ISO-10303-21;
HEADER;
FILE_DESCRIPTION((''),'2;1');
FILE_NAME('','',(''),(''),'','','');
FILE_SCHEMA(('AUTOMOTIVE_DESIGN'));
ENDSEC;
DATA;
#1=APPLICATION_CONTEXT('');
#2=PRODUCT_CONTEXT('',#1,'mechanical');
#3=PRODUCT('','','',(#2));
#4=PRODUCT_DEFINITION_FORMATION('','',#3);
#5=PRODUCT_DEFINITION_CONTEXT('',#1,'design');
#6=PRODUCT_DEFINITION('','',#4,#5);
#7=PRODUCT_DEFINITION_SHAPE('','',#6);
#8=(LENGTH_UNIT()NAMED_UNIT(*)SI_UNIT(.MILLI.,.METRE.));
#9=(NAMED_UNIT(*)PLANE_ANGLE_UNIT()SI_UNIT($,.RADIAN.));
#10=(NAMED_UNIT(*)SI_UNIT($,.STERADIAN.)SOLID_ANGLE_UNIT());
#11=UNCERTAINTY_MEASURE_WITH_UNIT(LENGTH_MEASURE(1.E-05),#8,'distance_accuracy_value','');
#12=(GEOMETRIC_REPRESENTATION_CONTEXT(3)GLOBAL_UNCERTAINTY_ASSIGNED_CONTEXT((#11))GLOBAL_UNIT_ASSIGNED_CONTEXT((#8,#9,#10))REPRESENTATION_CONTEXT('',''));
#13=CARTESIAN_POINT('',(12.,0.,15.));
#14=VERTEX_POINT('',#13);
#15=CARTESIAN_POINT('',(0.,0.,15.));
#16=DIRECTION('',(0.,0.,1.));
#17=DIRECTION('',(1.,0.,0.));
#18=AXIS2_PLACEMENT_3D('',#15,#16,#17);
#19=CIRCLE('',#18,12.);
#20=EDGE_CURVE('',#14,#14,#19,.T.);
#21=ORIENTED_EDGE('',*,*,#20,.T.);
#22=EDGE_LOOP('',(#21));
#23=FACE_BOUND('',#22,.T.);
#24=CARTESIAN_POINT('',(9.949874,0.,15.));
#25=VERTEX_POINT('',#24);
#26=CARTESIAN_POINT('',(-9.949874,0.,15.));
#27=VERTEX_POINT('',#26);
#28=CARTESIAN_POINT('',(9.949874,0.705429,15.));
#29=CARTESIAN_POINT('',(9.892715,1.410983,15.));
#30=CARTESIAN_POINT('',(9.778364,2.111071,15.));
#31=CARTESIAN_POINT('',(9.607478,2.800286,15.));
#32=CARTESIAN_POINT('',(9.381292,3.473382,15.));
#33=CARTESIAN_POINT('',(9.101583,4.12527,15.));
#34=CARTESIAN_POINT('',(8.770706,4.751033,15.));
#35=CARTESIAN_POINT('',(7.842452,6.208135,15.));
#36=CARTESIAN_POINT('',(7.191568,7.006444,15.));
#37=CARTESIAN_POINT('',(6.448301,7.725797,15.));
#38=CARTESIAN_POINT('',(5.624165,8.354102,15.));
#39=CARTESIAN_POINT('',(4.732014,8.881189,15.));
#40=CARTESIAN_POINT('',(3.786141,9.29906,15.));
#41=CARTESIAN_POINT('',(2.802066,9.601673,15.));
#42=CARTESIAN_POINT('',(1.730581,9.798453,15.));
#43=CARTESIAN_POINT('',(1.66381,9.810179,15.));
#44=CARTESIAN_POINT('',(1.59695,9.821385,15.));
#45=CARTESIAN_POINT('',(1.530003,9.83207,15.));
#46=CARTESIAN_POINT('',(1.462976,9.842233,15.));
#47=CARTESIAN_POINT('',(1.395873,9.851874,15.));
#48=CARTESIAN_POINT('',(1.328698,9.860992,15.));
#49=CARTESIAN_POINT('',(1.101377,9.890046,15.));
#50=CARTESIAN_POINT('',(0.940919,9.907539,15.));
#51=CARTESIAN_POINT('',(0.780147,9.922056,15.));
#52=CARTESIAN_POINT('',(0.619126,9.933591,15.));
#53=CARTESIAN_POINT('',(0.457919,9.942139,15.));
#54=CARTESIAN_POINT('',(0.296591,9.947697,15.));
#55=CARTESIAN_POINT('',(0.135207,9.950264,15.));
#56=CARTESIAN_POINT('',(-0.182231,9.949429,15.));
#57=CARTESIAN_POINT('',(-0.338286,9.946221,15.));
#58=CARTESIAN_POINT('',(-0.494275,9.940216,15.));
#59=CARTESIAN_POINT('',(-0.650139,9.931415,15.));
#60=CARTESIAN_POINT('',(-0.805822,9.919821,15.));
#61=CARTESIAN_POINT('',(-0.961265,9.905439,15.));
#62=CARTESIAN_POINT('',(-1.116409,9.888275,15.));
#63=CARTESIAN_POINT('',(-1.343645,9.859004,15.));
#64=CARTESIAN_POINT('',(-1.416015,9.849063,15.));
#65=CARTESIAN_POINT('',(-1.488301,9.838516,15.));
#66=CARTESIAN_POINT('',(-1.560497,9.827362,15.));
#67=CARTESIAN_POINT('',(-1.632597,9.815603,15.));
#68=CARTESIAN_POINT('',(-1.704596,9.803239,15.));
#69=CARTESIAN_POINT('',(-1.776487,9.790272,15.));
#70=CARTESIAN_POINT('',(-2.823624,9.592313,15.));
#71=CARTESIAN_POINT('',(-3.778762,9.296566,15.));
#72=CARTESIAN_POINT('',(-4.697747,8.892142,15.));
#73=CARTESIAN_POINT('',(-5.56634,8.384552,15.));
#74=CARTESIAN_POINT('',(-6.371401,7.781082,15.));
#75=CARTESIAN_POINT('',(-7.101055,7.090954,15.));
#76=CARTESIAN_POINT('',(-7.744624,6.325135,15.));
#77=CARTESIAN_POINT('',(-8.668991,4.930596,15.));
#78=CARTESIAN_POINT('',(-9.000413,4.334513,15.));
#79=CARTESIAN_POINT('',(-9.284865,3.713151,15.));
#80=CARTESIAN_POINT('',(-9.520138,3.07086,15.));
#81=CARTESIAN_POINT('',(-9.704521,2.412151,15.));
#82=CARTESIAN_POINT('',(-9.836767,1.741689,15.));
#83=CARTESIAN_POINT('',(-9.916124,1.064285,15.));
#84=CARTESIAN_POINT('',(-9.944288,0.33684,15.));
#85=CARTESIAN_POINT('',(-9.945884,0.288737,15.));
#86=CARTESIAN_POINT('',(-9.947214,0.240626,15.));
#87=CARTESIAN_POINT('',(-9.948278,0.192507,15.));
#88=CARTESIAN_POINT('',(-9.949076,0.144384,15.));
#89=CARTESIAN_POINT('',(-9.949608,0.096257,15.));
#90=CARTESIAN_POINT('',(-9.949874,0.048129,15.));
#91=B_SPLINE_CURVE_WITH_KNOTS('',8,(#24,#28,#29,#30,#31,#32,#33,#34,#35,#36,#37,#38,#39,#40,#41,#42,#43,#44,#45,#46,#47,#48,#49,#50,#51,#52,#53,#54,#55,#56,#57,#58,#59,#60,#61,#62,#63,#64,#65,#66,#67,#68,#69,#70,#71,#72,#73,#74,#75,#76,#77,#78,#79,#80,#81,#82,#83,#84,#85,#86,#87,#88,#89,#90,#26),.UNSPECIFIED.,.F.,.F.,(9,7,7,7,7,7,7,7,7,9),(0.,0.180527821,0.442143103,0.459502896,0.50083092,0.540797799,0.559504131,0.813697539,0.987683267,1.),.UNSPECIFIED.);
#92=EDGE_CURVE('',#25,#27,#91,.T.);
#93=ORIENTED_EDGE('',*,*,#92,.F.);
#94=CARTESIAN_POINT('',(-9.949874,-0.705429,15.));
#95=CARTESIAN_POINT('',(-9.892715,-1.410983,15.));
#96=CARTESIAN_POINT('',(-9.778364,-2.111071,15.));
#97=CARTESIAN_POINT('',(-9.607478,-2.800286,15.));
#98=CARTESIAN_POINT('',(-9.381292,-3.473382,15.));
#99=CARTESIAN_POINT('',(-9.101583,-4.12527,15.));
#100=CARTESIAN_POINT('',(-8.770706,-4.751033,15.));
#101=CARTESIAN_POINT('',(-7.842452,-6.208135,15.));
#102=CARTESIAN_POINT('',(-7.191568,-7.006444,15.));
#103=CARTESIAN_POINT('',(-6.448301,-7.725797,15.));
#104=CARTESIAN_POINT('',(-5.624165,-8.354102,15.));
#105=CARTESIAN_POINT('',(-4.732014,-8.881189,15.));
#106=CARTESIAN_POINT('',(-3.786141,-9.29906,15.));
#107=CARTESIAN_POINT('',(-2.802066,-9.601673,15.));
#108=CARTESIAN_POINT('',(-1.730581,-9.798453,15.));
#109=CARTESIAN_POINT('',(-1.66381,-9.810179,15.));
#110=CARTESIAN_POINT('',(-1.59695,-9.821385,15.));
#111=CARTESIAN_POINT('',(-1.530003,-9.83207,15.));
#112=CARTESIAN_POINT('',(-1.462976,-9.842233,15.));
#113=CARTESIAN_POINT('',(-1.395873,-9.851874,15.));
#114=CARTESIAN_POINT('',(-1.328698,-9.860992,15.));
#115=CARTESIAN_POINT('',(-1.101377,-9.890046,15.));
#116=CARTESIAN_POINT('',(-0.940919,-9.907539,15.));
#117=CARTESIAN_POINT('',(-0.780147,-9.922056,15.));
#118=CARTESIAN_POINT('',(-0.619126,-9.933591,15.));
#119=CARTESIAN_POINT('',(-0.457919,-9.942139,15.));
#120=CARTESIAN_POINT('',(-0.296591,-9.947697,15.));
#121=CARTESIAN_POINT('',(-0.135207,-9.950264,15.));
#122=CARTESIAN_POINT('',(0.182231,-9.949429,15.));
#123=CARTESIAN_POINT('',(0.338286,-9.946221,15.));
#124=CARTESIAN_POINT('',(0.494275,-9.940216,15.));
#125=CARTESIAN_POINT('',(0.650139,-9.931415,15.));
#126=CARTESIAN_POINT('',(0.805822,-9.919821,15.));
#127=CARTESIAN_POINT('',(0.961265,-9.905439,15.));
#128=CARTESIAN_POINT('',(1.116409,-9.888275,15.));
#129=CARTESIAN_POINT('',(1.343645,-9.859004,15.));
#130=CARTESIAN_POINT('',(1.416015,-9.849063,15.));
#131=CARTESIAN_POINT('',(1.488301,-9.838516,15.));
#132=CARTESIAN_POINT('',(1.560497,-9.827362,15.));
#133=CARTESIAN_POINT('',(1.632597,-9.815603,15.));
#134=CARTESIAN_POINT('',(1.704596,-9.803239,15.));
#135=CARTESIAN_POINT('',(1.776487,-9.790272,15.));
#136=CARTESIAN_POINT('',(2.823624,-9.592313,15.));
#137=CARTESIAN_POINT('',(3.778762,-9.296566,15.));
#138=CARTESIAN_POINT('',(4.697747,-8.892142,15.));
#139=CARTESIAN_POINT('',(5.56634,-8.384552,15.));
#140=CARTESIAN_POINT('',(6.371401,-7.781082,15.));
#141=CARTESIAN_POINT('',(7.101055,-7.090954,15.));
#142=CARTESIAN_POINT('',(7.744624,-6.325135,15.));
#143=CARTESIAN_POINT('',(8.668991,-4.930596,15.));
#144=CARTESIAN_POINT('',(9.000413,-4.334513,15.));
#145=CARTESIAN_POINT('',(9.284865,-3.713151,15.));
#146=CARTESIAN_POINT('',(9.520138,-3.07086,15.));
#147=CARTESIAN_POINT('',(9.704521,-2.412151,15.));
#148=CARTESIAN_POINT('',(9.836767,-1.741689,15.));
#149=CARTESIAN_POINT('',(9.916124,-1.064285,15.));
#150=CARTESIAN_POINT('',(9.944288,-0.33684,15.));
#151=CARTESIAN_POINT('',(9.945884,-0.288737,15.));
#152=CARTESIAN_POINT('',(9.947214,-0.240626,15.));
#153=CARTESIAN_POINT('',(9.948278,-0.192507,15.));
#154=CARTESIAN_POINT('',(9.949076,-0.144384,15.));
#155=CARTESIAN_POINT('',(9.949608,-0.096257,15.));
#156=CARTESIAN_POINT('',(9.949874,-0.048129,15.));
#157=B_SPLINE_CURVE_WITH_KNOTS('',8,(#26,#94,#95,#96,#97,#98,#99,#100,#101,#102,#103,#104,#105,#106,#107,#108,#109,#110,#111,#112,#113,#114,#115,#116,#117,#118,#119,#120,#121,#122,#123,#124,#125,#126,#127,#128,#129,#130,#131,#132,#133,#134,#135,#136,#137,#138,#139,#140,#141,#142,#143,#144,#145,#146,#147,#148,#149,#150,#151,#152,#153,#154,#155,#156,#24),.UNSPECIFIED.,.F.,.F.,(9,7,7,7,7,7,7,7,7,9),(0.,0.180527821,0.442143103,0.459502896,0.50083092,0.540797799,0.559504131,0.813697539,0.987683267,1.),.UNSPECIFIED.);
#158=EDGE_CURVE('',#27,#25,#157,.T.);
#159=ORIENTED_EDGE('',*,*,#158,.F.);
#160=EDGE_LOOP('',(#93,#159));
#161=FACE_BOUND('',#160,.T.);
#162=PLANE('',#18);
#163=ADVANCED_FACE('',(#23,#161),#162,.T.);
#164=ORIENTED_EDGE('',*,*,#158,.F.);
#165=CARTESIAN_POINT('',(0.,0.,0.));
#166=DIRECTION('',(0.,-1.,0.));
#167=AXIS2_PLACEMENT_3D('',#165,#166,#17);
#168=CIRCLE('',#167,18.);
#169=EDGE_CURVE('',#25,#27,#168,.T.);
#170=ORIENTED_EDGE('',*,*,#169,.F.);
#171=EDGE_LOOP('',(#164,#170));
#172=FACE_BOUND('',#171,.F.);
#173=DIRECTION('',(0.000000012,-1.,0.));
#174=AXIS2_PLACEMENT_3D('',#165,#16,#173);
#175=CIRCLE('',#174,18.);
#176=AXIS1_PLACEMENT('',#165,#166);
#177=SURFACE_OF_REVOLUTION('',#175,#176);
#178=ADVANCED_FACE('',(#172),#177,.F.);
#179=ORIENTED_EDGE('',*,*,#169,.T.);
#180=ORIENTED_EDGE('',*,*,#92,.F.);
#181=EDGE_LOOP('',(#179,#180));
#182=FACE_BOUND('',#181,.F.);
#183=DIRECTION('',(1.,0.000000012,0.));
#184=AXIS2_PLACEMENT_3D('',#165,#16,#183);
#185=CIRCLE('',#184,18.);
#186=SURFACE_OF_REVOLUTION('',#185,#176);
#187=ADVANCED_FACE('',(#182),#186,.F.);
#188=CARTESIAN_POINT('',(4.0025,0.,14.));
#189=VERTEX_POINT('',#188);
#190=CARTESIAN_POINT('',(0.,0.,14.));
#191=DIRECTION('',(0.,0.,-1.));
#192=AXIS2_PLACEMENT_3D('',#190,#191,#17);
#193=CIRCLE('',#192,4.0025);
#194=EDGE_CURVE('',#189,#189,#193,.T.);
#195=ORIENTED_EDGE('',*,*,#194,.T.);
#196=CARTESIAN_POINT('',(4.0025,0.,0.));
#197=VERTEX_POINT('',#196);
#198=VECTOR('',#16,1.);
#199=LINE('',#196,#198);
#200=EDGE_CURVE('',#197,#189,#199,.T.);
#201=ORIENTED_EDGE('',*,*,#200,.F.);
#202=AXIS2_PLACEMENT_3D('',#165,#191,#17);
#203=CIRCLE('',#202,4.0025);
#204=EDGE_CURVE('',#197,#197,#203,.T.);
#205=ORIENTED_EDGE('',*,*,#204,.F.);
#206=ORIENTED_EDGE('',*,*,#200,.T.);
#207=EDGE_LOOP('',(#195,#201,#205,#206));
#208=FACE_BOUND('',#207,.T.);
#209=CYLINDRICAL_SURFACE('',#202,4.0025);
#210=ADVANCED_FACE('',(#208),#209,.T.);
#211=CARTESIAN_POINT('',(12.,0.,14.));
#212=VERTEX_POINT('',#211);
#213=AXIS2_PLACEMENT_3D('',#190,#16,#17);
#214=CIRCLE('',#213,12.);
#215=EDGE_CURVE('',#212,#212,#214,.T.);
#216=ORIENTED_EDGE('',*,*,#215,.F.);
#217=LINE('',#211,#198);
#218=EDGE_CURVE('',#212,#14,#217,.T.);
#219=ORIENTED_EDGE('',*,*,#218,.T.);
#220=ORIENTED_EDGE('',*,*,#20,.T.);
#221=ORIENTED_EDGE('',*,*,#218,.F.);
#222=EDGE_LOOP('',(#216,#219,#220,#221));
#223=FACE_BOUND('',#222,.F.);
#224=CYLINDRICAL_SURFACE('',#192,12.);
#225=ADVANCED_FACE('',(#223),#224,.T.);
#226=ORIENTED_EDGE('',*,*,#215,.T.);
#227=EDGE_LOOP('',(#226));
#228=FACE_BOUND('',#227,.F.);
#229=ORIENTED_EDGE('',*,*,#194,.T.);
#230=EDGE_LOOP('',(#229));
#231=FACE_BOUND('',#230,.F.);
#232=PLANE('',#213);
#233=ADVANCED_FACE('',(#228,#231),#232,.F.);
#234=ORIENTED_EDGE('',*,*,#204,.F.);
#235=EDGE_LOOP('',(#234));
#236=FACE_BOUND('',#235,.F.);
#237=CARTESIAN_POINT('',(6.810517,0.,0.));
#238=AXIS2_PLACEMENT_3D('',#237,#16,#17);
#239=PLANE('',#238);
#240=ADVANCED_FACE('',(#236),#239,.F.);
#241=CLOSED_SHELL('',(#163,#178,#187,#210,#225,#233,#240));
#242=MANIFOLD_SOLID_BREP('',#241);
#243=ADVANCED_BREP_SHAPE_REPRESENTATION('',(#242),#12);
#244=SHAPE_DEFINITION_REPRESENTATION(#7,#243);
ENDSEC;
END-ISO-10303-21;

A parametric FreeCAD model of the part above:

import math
import FreeCAD as App
import Part
import Sketcher

V = App.Vector
Q = App.Units.Quantity

doc = App.newDocument("Part")
params = doc.addObject("Spreadsheet::Sheet", "Params")
for row, (alias, value) in enumerate([
    ("sketch1_radius", "18 mm"),
    ("revolution_angle", "180 deg"),
    ("sketch2_diameter", "36 mm"),
    ("pocket1_length", "14 mm"),
    ("sketch3_diameter", "24 mm"),
    ("pad1_length", "1 mm"),
    ("pad2_length", "11 mm"),
], start=1):
    params.set(f"A{row}", alias)
    params.set(f"B{row}", "=" + value)
    params.setAlias(f"B{row}", alias)

body = doc.addObject("PartDesign::Body", "Body")

# Sketch on XY plane
sketch1 = body.newObject("Sketcher::SketchObject", "Sketch")
sketch1.AttachmentSupport = (doc.getObject("XY_Plane"), [""])
sketch1.MapMode = "FlatFace"
sketch1.addGeometry(Part.ArcOfCircle(Part.Circle(V(0, 0, 0), V(0, 0, 1), 18), math.radians(-90), math.radians(0)), False)
sketch1.addGeometry(Part.ArcOfCircle(Part.Circle(V(0, 0, 0), V(0, 0, 1), 18), math.radians(0), math.radians(90)), False)
sketch1.addGeometry(Part.LineSegment(V(0, 18, 0), V(0, -18, 0)), False)
sketch1.addConstraint(Sketcher.Constraint("Tangent", 0, 2, 1, 1))
sketch1.addConstraint(Sketcher.Constraint("Coincident", 1, 2, 2, 1))
sketch1.addConstraint(Sketcher.Constraint("Coincident", 2, 2, 0, 1))
sketch1.addConstraint(Sketcher.Constraint("Vertical", 2))
sketch1.addConstraint(Sketcher.Constraint("Coincident", 0, 3, -1, 1))
sketch1.addConstraint(Sketcher.Constraint("Equal", 0, 1))
sketch1.addConstraint(Sketcher.Constraint("PointOnObject", 0, 2, -1))
sketch1.addConstraint(Sketcher.Constraint("PointOnObject", 1, 2, -2))
sketch1.addConstraint(Sketcher.Constraint("Radius", 0, Q("18 mm")))
sketch1.setExpression("Constraints[8]", "Params.sketch1_radius")
revolution = body.newObject("PartDesign::Revolution", "Revolution")
revolution.Profile = sketch1
revolution.ReferenceAxis = (sketch1, ["V_Axis"])
revolution.setExpression("Angle", "Params.revolution_angle")
revolution.Reversed = True

# Sketch on XY plane
sketch2 = body.newObject("Sketcher::SketchObject", "Sketch001")
sketch2.AttachmentSupport = (doc.getObject("XY_Plane"), [""])
sketch2.MapMode = "FlatFace"
sketch2.addGeometry(Part.Circle(V(0, 0, 0), V(0, 0, 1), 18), False)
sketch2.addGeometry(Part.Circle(V(0, 0, 0), V(0, 0, 1), 4), False)
sketch2.addConstraint(Sketcher.Constraint("Coincident", 0, 3, -1, 1))
sketch2.addConstraint(Sketcher.Constraint("Coincident", 1, 3, -1, 1))
sketch2.addConstraint(Sketcher.Constraint("Diameter", 0, Q("36 mm")))
sketch2.addConstraint(Sketcher.Constraint("Diameter", 1, Q("8.005 mm")))
sketch2.setExpression("Constraints[2]", "Params.sketch2_diameter")
pocket1 = body.newObject("PartDesign::Pocket", "Pocket")
pocket1.Profile = sketch2
pocket1.setExpression("Length", "Params.pocket1_length")
pocket1.Reversed = True

# Sketch on XY plane
sketch3 = body.newObject("Sketcher::SketchObject", "Sketch002")
sketch3.AttachmentSupport = (doc.getObject("XY_Plane"), [""])
sketch3.MapMode = "FlatFace"
sketch3.AttachmentOffset = App.Placement(V(0, 0, 14), App.Rotation())
sketch3.addGeometry(Part.Circle(V(0, 0, 0), V(0, 0, 1), 12), False)
sketch3.addConstraint(Sketcher.Constraint("Coincident", 0, 3, -1, 1))
sketch3.addConstraint(Sketcher.Constraint("Diameter", 0, Q("24 mm")))
sketch3.setExpression("Constraints[1]", "Params.sketch3_diameter")
pad1 = body.newObject("PartDesign::Pad", "Pad")
pad1.Profile = sketch3
pad1.setExpression("Length", "Params.pad1_length")

# Sketch on XY plane
sketch4 = body.newObject("Sketcher::SketchObject", "Sketch003")
sketch4.AttachmentSupport = (doc.getObject("XY_Plane"), [""])
sketch4.MapMode = "FlatFace"
sketch4.addGeometry(Part.Circle(V(0, 0, 0), V(0, 0, 1), 4), False)
sketch4.addConstraint(Sketcher.Constraint("Coincident", 0, 3, -1, 1))
sketch4.addConstraint(Sketcher.Constraint("Diameter", 0, Q("8.005 mm")))
pad2 = body.newObject("PartDesign::Pad", "Pad001")
pad2.Profile = sketch4
pad2.setExpression("Length", "Params.pad2_length")

doc.recompute()
